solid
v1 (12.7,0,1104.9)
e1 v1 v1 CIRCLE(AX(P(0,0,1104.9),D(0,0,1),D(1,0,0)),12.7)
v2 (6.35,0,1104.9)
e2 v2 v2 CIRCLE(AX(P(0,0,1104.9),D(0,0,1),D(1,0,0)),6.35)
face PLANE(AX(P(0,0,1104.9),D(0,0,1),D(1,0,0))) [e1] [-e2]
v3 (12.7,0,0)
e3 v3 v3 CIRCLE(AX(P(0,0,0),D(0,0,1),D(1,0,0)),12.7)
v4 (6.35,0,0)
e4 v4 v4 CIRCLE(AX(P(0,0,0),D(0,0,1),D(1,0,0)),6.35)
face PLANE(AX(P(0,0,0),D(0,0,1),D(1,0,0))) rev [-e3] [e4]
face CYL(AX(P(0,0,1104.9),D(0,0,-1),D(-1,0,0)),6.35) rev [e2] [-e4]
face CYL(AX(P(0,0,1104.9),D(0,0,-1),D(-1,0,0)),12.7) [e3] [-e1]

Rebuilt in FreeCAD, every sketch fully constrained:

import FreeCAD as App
import Part
import Sketcher
Q = App.Units.Quantity

doc = App.newDocument("Part")
body = doc.addObject("PartDesign::Body", "Body")

# Sketch on XY plane
sketch1 = body.newObject("Sketcher::SketchObject", "Sketch")
sketch1.AttachmentSupport = (doc.getObject("XY_Plane"), [""])
sketch1.MapMode = "FlatFace"
sketch1.addGeometry([
    Part.Circle(App.Vector(0, 0, 0), App.Vector(0, 0, 1), 13),
    Part.Circle(App.Vector(0, 0, 0), App.Vector(0, 0, 1), 6),
], False)
sketch1.addConstraint([
    Sketcher.Constraint("Coincident", 0, 3, -1, 1),
    Sketcher.Constraint("Coincident", 1, 3, -1, 1),
    Sketcher.Constraint("Diameter", 0, Q("1 in")),
    Sketcher.Constraint("Diameter", 1, Q("0.5 in")),
])
pad1 = body.newObject("PartDesign::Pad", "Pad")
pad1.Profile = sketch1
pad1.Length = Q("43.5 in")

doc.recompute()
